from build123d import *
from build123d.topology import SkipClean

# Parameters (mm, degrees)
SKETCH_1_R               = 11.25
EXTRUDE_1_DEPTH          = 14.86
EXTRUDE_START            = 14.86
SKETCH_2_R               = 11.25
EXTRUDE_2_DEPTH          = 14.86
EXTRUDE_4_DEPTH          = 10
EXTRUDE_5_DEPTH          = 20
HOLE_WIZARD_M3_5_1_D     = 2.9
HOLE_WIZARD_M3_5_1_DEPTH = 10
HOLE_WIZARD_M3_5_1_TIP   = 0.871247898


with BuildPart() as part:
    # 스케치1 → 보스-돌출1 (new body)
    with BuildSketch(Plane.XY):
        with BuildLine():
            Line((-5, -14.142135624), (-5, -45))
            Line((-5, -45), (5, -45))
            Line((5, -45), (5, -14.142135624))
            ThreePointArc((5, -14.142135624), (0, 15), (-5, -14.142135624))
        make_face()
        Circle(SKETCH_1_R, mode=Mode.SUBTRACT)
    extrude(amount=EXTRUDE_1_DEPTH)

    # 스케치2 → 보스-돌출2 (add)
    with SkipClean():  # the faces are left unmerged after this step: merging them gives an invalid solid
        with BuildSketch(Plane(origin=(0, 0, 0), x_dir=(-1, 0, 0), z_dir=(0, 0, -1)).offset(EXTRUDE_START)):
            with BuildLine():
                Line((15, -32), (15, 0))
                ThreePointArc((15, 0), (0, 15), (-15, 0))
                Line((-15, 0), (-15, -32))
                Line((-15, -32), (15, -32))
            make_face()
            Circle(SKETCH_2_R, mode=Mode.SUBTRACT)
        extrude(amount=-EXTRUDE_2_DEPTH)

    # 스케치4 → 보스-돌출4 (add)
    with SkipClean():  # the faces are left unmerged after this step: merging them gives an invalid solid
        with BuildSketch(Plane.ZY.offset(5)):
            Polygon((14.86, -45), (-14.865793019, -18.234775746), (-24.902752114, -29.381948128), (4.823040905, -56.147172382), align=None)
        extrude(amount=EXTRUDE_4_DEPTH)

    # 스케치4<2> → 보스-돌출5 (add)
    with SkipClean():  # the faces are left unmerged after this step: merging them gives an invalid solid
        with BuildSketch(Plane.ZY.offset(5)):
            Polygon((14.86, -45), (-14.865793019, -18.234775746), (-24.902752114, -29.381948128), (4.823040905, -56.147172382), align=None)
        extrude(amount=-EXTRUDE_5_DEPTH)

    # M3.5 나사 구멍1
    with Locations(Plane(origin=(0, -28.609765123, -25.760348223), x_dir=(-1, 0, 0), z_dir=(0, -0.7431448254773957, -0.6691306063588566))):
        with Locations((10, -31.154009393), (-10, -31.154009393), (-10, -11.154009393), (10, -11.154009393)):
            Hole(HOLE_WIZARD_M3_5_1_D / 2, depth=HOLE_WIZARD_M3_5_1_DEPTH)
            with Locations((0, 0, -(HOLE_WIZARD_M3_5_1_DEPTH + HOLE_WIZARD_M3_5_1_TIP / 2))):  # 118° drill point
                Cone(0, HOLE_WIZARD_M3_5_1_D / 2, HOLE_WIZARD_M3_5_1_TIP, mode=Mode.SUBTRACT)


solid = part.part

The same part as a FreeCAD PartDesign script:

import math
import FreeCAD as App
import Part
import Sketcher

V = App.Vector
Q = App.Units.Quantity


def add_polygon(sketch, points):
    """Adds a closed chain of lines whose ends are joined by coincident constraints."""
    first, n = sketch.GeometryCount, len(points)
    for a, b in zip(points, points[1:] + points[:1]):
        sketch.addGeometry(Part.LineSegment(App.Vector(*a, 0), App.Vector(*b, 0)), False)
    for i in range(n):
        sketch.addConstraint(Sketcher.Constraint("Coincident", first + i, 2, first + (i + 1) % n, 1))

doc = App.newDocument("Part")
body = doc.addObject("PartDesign::Body", "Body")

# Sketch on XY plane
sketch1 = body.newObject("Sketcher::SketchObject", "Sketch")
sketch1.AttachmentSupport = (doc.getObject("XY_Plane"), [""])
sketch1.MapMode = "FlatFace"
sketch1.addGeometry([
    Part.LineSegment(V(-5, -14, 0), V(-5, -45, 0)),  # 0
    Part.LineSegment(V(-5, -45, 0), V(5, -45, 0)),  # 1
    Part.LineSegment(V(5, -45, 0), V(5, -14, 0)),  # 2
    Part.ArcOfCircle(Part.Circle(V(0, 0, 0), V(0, 0, 1), 15), math.radians(-71), math.radians(251)),  # 3
    Part.Circle(V(0, 0, 0), V(0, 0, 1), 11),  # 4
], False)
sketch1.addConstraint([
    Sketcher.Constraint("Coincident", 0, 2, 1, 1),
    Sketcher.Constraint("Coincident", 1, 2, 2, 1),
    Sketcher.Constraint("Coincident", 2, 2, 3, 1),
    Sketcher.Constraint("Coincident", 3, 2, 0, 1),
    Sketcher.Constraint("Vertical", 0),
    Sketcher.Constraint("Horizontal", 1),
    Sketcher.Constraint("Vertical", 2),
    Sketcher.Constraint("Coincident", 3, 3, -1, 1),
    Sketcher.Constraint("Coincident", 4, 3, -1, 1),
    Sketcher.Constraint("Horizontal", 2, 2, 3, 2),
    Sketcher.Constraint("Radius", 3, Q("15 mm")),
    Sketcher.Constraint("Diameter", 4, Q("22.5 mm")),
    Sketcher.Constraint("DistanceX", 1, 1, 1, 2, Q("10 mm")),
    Sketcher.Constraint("DistanceY", 0, 2, -1, 1, Q("45 mm")),
])
pad1 = body.newObject("PartDesign::Pad", "Pad")
pad1.Profile = sketch1
pad1.Length = 14.86

# Sketch on XY plane
sketch2 = body.newObject("Sketcher::SketchObject", "Sketch001")
sketch2.AttachmentSupport = (doc.getObject("XY_Plane"), [""])
sketch2.MapMode = "FlatFace"
sketch2.AttachmentOffset = App.Placement(V(0, 0, -14.86), App.Rotation())
sketch2.addGeometry([
    Part.LineSegment(V(-15, -32, 0), V(-15, 0, 0)),  # 0
    Part.ArcOfCircle(Part.Circle(V(0, 0, 0), V(0, 0, 1), 15), math.radians(0), math.radians(180)),  # 1
    Part.LineSegment(V(15, 0, 0), V(15, -32, 0)),  # 2
    Part.LineSegment(V(15, -32, 0), V(-15, -32, 0)),  # 3
    Part.Circle(V(0, 0, 0), V(0, 0, 1), 11),  # 4
], False)
sketch2.addConstraint([
    Sketcher.Constraint("Tangent", 0, 2, 1, 2),
    Sketcher.Constraint("Tangent", 1, 1, 2, 1),
    Sketcher.Constraint("Coincident", 2, 2, 3, 1),
    Sketcher.Constraint("Coincident", 3, 2, 0, 1),
    Sketcher.Constraint("Vertical", 0),
    Sketcher.Constraint("Vertical", 2),
    Sketcher.Constraint("Horizontal", 3),
    Sketcher.Constraint("Coincident", 1, 3, -1, 1),
    Sketcher.Constraint("Coincident", 4, 3, -1, 1),
    Sketcher.Constraint("Radius", 1, Q("15 mm")),
    Sketcher.Constraint("Diameter", 4, Q("22.5 mm")),
    Sketcher.Constraint("DistanceY", 0, 1, 0, 2, Q("32 mm")),
])
pad2 = body.newObject("PartDesign::Pad", "Pad001")
pad2.Profile = sketch2
pad2.Length = 14.86

# Sketch on YZ plane
sketch3 = body.newObject("Sketcher::SketchObject", "Sketch002")
sketch3.AttachmentSupport = (doc.getObject("YZ_Plane"), [""])
sketch3.MapMode = "FlatFace"
sketch3.AttachmentOffset = App.Placement(V(0, 0, -5), App.Rotation())
add_polygon(sketch3, [(-45, 15), (-18, -15), (-29, -25), (-56, 5)])  # lines 0-3
sketch3.addConstraint([
    Sketcher.Constraint("Perpendicular", 0, 1),
    Sketcher.Constraint("Perpendicular", 1, 2),
    Sketcher.Constraint("Perpendicular", 2, 3),
    Sketcher.Constraint("Angle", 0, Q("-48 deg")),
    Sketcher.Constraint("Distance", 0, Q("40 mm")),
    Sketcher.Constraint("Distance", 1, Q("15 mm")),
    Sketcher.Constraint("DistanceX", 3, 2, -1, 1, Q("45 mm")),
    Sketcher.Constraint("DistanceY", -1, 1, 3, 2, Q("14.86 mm")),
])
pad3 = body.newObject("PartDesign::Pad", "Pad002")
pad3.Profile = sketch3
pad3.Length = 10
pad3.Reversed = True

# Sketch on YZ plane
sketch4 = body.newObject("Sketcher::SketchObject", "Sketch003")
sketch4.AttachmentSupport = (doc.getObject("YZ_Plane"), [""])
sketch4.MapMode = "FlatFace"
sketch4.AttachmentOffset = App.Placement(V(0, 0, -5), App.Rotation())
add_polygon(sketch4, [(-45, 15), (-18, -15), (-29, -25), (-56, 5)])  # lines 0-3
sketch4.addConstraint([
    Sketcher.Constraint("Perpendicular", 0, 1),
    Sketcher.Constraint("Perpendicular", 1, 2),
    Sketcher.Constraint("Perpendicular", 2, 3),
    Sketcher.Constraint("Angle", 0, Q("-48 deg")),
    Sketcher.Constraint("Distance", 0, Q("40 mm")),
    Sketcher.Constraint("Distance", 1, Q("15 mm")),
    Sketcher.Constraint("DistanceX", 3, 2, -1, 1, Q("45 mm")),
    Sketcher.Constraint("DistanceY", -1, 1, 3, 2, Q("14.86 mm")),
])
pad4 = body.newObject("PartDesign::Pad", "Pad003")
pad4.Profile = sketch4
pad4.Length = 20

# Sketch on an angled plane
sketch5 = body.newObject("Sketcher::SketchObject", "Sketch004")
sketch5.Placement = App.Placement(V(0, -28.609765, -25.760348), App.Rotation(V(-1, 0, 0), V(0, 0.669130606, -0.743144825), V(0, -0.743144825, -0.669130606), "ZXY"))
sketch5.addGeometry([
    Part.Circle(V(10, -31.2, 0), V(0, 0, 1), 1.4),
    Part.Circle(V(-10, -31.2, 0), V(0, 0, 1), 1.4),
    Part.Circle(V(-10, -11.2, 0), V(0, 0, 1), 1.4),
    Part.Circle(V(10, -11.2, 0), V(0, 0, 1), 1.4),
], False)
sketch5.addConstraint([
    Sketcher.Constraint("Equal", 0, 1),
    Sketcher.Constraint("Equal", 1, 2),
    Sketcher.Constraint("Equal", 2, 3),
    Sketcher.Constraint("Symmetric", 0, 3, 1, 3, -2),
    Sketcher.Constraint("Symmetric", 2, 3, 3, 3, -2),
    Sketcher.Constraint("Vertical", 1, 3, 2, 3),
    Sketcher.Constraint("Diameter", 0, Q("2.9 mm")),
    Sketcher.Constraint("DistanceX", -1, 1, 0, 3, Q("10 mm")),
    Sketcher.Constraint("DistanceY", 1, 3, 2, 3, Q("20 mm")),
    Sketcher.Constraint("DistanceY", 0, 3, -1, 1, Q("31.154009 mm")),
])
doc.recompute()
hole = body.newObject("PartDesign::Hole", "Hole")
hole.Profile = sketch5
hole.ThreadType = "None"
hole.Diameter = 2.9
hole.DepthType = "Dimension"
hole.Depth = 10
hole.DrillPoint = "Angled"
hole.DrillPointAngle = 118

doc.recompute()
